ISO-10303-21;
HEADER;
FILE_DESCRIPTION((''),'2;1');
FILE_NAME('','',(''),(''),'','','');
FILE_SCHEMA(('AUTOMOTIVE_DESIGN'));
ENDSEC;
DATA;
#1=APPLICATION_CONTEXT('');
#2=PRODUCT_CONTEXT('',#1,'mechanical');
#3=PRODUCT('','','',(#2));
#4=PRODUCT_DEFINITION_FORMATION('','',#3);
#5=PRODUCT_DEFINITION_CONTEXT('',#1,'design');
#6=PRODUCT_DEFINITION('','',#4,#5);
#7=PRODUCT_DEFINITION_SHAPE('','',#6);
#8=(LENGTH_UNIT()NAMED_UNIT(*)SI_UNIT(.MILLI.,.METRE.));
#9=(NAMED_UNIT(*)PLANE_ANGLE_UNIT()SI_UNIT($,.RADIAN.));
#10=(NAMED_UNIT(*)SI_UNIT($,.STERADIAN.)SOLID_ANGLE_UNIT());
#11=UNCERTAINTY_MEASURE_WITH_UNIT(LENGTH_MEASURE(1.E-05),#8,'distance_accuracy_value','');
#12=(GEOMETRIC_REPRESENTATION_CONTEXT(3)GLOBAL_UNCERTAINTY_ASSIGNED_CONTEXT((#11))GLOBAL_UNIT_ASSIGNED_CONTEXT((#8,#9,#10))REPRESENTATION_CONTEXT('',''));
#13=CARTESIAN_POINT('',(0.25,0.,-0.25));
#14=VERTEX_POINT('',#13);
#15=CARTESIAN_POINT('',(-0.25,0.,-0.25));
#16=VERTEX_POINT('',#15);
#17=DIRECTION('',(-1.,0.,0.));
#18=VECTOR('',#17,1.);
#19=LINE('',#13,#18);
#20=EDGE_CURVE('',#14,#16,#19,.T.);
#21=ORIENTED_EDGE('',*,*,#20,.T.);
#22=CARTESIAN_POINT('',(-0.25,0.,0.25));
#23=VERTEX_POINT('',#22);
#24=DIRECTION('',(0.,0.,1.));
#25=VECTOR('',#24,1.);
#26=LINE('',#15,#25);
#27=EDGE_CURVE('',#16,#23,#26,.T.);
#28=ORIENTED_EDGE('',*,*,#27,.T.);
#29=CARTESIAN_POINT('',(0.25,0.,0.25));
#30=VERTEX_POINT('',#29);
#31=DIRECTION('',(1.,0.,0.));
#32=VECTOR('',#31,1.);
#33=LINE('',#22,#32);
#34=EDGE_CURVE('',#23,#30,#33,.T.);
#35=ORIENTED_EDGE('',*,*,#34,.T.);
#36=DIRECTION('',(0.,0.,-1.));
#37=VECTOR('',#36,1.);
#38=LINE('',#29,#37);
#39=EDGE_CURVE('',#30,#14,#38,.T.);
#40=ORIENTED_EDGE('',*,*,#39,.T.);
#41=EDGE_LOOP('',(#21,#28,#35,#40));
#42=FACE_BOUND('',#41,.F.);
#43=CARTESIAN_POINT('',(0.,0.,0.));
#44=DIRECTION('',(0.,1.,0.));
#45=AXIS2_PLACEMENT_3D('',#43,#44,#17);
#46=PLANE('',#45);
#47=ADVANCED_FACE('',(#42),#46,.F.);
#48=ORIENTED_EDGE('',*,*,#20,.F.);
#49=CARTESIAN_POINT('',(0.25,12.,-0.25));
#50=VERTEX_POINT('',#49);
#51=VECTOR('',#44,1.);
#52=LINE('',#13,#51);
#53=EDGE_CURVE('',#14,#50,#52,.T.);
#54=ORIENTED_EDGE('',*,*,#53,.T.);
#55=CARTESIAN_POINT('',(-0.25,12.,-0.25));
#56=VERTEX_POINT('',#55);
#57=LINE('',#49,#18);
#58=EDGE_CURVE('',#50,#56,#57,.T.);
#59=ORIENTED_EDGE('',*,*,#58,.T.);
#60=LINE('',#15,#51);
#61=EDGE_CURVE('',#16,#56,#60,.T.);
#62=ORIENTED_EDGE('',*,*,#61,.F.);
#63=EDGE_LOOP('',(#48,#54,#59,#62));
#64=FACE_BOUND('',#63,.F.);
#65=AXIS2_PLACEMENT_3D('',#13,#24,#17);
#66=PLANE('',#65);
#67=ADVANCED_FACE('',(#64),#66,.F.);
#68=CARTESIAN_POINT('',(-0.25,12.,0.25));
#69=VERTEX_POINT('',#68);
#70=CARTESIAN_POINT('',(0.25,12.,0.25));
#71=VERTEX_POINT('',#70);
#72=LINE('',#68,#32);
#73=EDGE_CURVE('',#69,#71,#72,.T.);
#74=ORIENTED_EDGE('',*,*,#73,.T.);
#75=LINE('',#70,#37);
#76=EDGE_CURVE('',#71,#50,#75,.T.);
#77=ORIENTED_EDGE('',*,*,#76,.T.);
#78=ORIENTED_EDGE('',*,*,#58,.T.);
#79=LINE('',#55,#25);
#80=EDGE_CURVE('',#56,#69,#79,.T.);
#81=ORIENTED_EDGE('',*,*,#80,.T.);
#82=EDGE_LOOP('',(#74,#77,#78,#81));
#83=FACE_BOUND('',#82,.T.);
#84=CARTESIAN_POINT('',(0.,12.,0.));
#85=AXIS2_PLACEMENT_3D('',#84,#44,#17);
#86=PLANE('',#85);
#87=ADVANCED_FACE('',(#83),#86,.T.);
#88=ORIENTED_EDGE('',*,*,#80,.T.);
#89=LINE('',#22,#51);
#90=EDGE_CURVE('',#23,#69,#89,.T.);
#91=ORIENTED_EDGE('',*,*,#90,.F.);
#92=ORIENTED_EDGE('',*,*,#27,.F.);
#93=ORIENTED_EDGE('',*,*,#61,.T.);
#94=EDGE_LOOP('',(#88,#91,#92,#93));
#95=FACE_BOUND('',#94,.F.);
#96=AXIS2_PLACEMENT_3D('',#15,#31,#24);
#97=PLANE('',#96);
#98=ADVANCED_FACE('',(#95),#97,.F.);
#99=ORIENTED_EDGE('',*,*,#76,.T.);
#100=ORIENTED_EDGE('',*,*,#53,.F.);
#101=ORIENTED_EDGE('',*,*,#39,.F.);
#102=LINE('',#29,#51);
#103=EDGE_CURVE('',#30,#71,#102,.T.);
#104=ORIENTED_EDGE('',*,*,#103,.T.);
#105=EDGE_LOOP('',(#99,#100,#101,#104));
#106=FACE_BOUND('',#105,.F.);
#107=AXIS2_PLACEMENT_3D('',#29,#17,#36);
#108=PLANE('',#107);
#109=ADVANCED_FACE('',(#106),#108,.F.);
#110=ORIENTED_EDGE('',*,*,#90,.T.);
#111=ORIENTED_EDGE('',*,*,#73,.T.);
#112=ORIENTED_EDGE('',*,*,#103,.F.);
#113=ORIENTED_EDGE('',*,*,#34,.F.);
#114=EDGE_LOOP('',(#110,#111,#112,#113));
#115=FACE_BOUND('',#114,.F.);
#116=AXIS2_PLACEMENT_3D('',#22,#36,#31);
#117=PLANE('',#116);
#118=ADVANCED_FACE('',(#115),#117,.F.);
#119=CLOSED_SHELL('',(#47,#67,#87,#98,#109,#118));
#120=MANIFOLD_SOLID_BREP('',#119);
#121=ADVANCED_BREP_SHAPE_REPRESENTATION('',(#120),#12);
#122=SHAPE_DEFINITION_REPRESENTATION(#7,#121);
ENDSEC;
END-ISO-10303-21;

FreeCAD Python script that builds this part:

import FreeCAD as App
import Part
import Sketcher

V = App.Vector


def add_polygon(sketch, points):
    """Adds a closed chain of lines whose ends are joined by coincident constraints."""
    first, n = sketch.GeometryCount, len(points)
    for a, b in zip(points, points[1:] + points[:1]):
        sketch.addGeometry(Part.LineSegment(App.Vector(*a, 0), App.Vector(*b, 0)), False)
    for i in range(n):
        sketch.addConstraint(Sketcher.Constraint("Coincident", first + i, 2, first + (i + 1) % n, 1))

doc = App.newDocument("Part")
params = doc.addObject("Spreadsheet::Sheet", "Params")
for row, (alias, value) in enumerate([
    ("sketch1_width", "0.5 mm"),
    ("pad1_length", "12 mm"),
], start=1):
    params.set(f"A{row}", alias)
    params.set(f"B{row}", "=" + value)
    params.setAlias(f"B{row}", alias)

body = doc.addObject("PartDesign::Body", "Body")

sketch1 = body.newObject("Sketcher::SketchObject", "Sketch")
sketch1.AttachmentSupport = (doc.getObject("XZ_Plane"), [""])
sketch1.MapMode = "FlatFace"
add_polygon(sketch1, [(-0.2, -0.2), (-0.2, 0.2), (0.2, 0.2), (0.2, -0.2)])
sketch1.addConstraint([
    Sketcher.Constraint("Vertical", 0),
    Sketcher.Constraint("Horizontal", 1),
    Sketcher.Constraint("Vertical", 2),
    Sketcher.Constraint("Horizontal", 3),
    Sketcher.Constraint("Symmetric", 0, 2, 2, 2, -1, 1),
    Sketcher.Constraint("Equal", 3, 0),
    Sketcher.Constraint("DistanceX", 1, 1, 1, 2, 0.5),
])
sketch1.setExpression("Constraints[10]", "Params.sketch1_width")
pad1 = body.newObject("PartDesign::Pad", "Pad")
pad1.Profile = sketch1
pad1.setExpression("Length", "Params.pad1_length")
pad1.Reversed = True

doc.recompute()
